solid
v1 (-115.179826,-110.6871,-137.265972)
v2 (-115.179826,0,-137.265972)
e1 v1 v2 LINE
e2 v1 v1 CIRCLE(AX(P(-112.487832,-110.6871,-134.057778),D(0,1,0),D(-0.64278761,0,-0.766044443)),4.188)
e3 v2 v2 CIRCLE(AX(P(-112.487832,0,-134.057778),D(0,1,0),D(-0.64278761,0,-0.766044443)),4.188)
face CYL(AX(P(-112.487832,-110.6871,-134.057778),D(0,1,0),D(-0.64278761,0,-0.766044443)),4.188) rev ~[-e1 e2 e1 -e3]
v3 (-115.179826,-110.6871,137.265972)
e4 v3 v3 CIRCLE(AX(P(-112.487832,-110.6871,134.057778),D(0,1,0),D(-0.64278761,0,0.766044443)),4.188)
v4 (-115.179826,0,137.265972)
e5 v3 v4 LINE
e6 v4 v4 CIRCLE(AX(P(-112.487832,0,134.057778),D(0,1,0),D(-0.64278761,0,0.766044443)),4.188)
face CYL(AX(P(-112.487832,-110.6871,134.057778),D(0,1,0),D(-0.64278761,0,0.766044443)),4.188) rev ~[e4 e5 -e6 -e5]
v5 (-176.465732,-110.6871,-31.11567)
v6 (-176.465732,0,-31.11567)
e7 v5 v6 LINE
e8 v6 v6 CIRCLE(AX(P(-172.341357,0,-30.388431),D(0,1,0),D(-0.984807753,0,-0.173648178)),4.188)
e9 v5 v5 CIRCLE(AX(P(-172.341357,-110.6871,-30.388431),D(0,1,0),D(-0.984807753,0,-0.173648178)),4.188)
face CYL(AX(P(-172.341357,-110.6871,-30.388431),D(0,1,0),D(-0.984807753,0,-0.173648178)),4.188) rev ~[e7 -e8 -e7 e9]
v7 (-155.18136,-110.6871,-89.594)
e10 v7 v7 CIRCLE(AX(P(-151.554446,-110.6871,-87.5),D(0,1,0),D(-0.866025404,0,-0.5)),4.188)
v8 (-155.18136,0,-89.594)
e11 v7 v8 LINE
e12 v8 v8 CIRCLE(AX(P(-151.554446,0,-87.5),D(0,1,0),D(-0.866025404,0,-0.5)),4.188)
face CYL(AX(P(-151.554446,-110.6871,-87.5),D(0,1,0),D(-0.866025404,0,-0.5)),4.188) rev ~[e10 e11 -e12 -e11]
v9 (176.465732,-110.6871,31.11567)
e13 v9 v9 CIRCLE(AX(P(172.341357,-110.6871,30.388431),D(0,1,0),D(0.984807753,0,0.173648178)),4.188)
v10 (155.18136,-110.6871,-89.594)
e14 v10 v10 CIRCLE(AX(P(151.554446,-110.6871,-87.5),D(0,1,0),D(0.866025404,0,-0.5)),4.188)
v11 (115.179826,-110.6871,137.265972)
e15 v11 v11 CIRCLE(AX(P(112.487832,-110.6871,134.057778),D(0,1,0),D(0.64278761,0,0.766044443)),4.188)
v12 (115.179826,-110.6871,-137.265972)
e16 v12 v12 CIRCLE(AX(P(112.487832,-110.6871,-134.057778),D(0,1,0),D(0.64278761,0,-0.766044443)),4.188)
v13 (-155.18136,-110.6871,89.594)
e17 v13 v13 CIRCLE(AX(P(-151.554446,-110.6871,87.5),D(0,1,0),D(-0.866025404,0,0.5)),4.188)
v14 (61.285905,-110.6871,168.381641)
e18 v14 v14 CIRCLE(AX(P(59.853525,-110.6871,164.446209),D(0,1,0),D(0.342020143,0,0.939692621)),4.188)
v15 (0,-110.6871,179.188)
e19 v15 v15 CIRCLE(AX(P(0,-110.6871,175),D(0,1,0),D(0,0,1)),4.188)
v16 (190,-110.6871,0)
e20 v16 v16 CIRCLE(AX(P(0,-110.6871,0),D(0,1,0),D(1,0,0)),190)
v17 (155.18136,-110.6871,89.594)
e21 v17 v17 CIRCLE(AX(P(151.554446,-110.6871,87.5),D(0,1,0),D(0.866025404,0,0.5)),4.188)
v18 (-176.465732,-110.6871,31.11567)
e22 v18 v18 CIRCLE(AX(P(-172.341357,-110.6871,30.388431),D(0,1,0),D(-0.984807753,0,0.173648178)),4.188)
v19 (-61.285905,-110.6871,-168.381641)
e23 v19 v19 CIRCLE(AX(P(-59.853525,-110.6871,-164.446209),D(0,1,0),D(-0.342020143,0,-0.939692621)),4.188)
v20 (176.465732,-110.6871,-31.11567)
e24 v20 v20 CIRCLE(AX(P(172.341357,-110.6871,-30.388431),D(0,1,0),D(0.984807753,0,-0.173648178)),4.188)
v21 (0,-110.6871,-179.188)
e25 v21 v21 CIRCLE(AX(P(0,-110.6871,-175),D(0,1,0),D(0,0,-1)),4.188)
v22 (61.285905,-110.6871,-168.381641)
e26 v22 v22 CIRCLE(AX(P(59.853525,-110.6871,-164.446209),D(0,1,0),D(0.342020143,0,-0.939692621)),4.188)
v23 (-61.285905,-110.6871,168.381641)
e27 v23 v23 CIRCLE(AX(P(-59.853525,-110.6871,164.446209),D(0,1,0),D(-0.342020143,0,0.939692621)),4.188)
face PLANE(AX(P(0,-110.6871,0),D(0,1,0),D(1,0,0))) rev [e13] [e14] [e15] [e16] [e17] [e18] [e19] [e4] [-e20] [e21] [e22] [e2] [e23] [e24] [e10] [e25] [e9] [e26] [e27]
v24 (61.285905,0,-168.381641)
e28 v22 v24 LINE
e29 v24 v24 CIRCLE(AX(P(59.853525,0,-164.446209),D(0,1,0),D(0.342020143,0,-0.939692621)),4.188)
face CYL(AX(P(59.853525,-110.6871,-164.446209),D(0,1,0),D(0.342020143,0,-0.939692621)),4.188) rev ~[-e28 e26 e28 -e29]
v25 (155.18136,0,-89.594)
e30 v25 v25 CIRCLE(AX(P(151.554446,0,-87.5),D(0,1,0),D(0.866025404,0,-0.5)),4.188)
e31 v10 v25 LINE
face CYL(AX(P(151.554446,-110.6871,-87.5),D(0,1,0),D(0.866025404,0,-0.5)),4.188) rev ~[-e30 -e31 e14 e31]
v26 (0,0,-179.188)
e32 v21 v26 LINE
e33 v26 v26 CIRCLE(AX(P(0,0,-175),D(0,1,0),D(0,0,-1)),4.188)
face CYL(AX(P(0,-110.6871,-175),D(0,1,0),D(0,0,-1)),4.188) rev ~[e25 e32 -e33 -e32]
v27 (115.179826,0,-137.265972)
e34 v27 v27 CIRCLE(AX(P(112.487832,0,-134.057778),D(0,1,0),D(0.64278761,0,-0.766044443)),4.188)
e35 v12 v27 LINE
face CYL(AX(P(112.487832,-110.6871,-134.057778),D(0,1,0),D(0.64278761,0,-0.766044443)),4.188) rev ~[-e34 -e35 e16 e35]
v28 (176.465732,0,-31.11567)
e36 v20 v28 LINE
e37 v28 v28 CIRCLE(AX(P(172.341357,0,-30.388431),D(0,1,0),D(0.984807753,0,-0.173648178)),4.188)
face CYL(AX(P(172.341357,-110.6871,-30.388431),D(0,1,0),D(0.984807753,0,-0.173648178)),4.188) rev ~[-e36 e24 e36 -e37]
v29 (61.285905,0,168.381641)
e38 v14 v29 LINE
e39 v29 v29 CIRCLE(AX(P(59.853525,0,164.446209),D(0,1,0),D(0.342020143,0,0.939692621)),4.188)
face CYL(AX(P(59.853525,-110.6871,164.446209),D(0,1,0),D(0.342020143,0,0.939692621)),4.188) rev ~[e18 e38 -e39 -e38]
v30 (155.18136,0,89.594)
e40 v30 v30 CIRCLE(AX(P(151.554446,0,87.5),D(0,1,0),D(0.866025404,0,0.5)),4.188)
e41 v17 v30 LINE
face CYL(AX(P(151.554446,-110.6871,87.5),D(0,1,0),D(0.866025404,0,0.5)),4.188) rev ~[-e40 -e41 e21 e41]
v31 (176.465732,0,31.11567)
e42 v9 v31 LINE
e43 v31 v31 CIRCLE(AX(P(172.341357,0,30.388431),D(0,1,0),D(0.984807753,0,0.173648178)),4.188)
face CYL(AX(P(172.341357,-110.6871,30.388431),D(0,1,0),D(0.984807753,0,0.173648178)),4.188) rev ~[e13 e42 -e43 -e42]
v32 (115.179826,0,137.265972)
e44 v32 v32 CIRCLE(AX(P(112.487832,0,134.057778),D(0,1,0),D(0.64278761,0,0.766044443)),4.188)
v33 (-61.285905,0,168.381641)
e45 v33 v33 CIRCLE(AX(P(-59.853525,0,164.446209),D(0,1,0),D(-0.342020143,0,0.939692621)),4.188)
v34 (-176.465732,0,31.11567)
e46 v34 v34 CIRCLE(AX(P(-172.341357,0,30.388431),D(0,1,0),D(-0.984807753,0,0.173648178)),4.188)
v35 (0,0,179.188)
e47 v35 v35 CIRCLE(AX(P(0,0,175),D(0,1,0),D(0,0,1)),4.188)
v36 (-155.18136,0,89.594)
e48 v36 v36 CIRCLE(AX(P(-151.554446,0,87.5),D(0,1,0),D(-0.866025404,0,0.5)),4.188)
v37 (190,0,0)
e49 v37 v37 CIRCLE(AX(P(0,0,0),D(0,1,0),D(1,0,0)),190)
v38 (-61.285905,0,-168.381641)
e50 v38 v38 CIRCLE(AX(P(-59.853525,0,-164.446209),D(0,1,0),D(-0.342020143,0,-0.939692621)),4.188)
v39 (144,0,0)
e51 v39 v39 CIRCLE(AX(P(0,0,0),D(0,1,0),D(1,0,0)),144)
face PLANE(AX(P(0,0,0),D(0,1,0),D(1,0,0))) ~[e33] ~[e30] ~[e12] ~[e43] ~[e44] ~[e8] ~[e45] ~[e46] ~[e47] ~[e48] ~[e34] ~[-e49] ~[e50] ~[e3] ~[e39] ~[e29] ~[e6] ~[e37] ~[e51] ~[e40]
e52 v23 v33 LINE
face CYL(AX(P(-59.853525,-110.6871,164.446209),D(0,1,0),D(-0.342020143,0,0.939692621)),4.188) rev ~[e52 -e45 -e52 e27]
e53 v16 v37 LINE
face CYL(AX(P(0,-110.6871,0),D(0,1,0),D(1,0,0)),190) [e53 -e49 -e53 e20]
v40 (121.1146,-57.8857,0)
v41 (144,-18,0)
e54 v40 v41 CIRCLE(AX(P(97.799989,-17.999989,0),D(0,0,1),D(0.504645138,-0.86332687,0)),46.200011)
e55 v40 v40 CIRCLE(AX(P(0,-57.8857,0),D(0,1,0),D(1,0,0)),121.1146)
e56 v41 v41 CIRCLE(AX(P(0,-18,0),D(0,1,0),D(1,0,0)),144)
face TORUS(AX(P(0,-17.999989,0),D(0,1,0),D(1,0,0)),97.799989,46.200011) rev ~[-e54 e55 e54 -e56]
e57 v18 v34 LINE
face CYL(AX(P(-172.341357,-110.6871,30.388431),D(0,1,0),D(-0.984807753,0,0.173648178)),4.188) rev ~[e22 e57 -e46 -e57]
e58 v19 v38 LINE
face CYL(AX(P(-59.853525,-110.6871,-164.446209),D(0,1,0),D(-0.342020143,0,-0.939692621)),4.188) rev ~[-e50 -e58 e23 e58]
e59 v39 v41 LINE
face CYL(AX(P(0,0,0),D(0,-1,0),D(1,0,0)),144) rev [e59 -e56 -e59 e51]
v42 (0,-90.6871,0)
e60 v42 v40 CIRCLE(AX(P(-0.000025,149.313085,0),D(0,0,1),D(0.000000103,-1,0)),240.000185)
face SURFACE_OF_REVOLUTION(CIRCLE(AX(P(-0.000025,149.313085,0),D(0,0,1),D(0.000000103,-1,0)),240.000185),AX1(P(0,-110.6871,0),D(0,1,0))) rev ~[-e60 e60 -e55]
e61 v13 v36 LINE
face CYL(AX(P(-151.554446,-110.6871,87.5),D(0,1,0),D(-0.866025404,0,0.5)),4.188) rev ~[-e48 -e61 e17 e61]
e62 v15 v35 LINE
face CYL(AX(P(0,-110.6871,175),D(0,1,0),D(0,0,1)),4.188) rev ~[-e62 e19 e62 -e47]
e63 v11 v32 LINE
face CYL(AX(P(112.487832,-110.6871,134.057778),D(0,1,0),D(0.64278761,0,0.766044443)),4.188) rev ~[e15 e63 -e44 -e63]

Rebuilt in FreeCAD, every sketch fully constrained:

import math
import FreeCAD as App
import Part
import Sketcher
from FreeCAD import Vector
Q = App.Units.Quantity

doc = App.newDocument("Part")
params = doc.addObject("Spreadsheet::Sheet", "Params")
for row, (alias, value) in enumerate([
    ("sketch1_radius", "240 mm"),
    ("sketch1_radius2", "46.2 mm"),
    ("sketch1_width", "46 mm"),
    ("sketch1_height", "20 mm"),
    ("sketch1_height2", "18 mm"),
    ("revolution_angle", "360 deg"),
    ("hole_diameter", "8.376 mm"),
], start=1):
    params.set(f"A{row}", alias)
    params.set(f"B{row}", "=" + value)
    params.setAlias(f"B{row}", alias)

body = doc.addObject("PartDesign::Body", "Body")

# Sketch on XY plane
sketch1 = body.newObject("Sketcher::SketchObject", "Sketch")
sketch1.AttachmentSupport = (doc.getObject("XY_Plane"), [""])
sketch1.MapMode = "FlatFace"
sketch1.addGeometry(Part.LineSegment(Vector(0, -91, 0), Vector(0, -111, 0)), False)
sketch1.addGeometry(Part.LineSegment(Vector(0, -111, 0), Vector(190, -111, 0)), False)
sketch1.addGeometry(Part.LineSegment(Vector(190, -111, 0), Vector(190, 0, 0)), False)
sketch1.addGeometry(Part.LineSegment(Vector(190, 0, 0), Vector(144, 0, 0)), False)
sketch1.addGeometry(Part.LineSegment(Vector(144, 0, 0), Vector(144, -18, 0)), False)
sketch1.addGeometry(Part.ArcOfCircle(Part.Circle(Vector(98, -18, 0), Vector(0, 0, 1), 46), math.radians(-60), math.radians(0)), False)
sketch1.addGeometry(Part.ArcOfCircle(Part.Circle(Vector(0, 149, 0), Vector(0, 0, 1), 240), math.radians(-90), math.radians(-60)), False)
sketch1.addConstraint(Sketcher.Constraint("Coincident", 0, 2, 1, 1))
sketch1.addConstraint(Sketcher.Constraint("Coincident", 1, 2, 2, 1))
sketch1.addConstraint(Sketcher.Constraint("Coincident", 2, 2, 3, 1))
sketch1.addConstraint(Sketcher.Constraint("Coincident", 3, 2, 4, 1))
sketch1.addConstraint(Sketcher.Constraint("Tangent", 4, 2, 5, 2))
sketch1.addConstraint(Sketcher.Constraint("Tangent", 5, 1, 6, 2))
sketch1.addConstraint(Sketcher.Constraint("Coincident", 6, 1, 0, 1))
sketch1.addConstraint(Sketcher.Constraint("Vertical", 0))
sketch1.addConstraint(Sketcher.Constraint("Horizontal", 1))
sketch1.addConstraint(Sketcher.Constraint("Vertical", 2))
sketch1.addConstraint(Sketcher.Constraint("Horizontal", 3))
sketch1.addConstraint(Sketcher.Constraint("Vertical", 4))
sketch1.addConstraint(Sketcher.Constraint("PointOnObject", 6, 3, -2))
sketch1.addConstraint(Sketcher.Constraint("PointOnObject", 0, 2, -2))
sketch1.addConstraint(Sketcher.Constraint("PointOnObject", 2, 2, -1))
sketch1.addConstraint(Sketcher.Constraint("Radius", 6, Q("240 mm")))
sketch1.addConstraint(Sketcher.Constraint("Radius", 5, Q("46.2 mm")))
sketch1.addConstraint(Sketcher.Constraint("DistanceX", 3, 2, 3, 1, Q("46 mm")))
sketch1.addConstraint(Sketcher.Constraint("DistanceY", 0, 2, 0, 1, Q("20 mm")))
sketch1.addConstraint(Sketcher.Constraint("DistanceY", 4, 2, 4, 1, Q("18 mm")))
sketch1.addConstraint(Sketcher.Constraint("DistanceX", 1, 1, 1, 2, Q("190 mm")))
sketch1.setExpression("Constraints[15]", "Params.sketch1_radius")
sketch1.setExpression("Constraints[16]", "Params.sketch1_radius2")
sketch1.setExpression("Constraints[17]", "Params.sketch1_width")
sketch1.setExpression("Constraints[18]", "Params.sketch1_height")
sketch1.setExpression("Constraints[19]", "Params.sketch1_height2")
revolution = body.newObject("PartDesign::Revolution", "Revolution")
revolution.Profile = sketch1
revolution.ReferenceAxis = (sketch1, ["V_Axis"])
revolution.setExpression("Angle", "Params.revolution_angle")

# Sketch on XZ plane
sketch2 = body.newObject("Sketcher::SketchObject", "Sketch001")
sketch2.AttachmentSupport = (doc.getObject("XZ_Plane"), [""])
sketch2.MapMode = "FlatFace"
sketch2.AttachmentOffset = App.Placement(Vector(0, 0, 110.6871), App.Rotation())
sketch2.addGeometry(Part.Circle(Vector(0, -175, 0), Vector(0, 0, 1), 4.2), False)
sketch2.addConstraint(Sketcher.Constraint("PointOnObject", 0, 3, -2))
sketch2.addConstraint(Sketcher.Constraint("Diameter", 0, Q("8.376 mm")))
sketch2.addConstraint(Sketcher.Constraint("DistanceY", 0, 3, -1, 1, Q("175 mm")))
doc.recompute()
hole = body.newObject("PartDesign::Hole", "Hole")
hole.Profile = sketch2
hole.ThreadType = "None"
hole.setExpression("Diameter", "Params.hole_diameter")
hole.DepthType = "ThroughAll"
doc.recompute()

polarpattern = body.newObject("PartDesign::PolarPattern", "PolarPattern")
polarpattern.Originals = [hole]
polarpattern.Axis = (doc.getObject("Y_Axis"), [""])
polarpattern.Angle = 360
polarpattern.Occurrences = 18
body.Tip = polarpattern

doc.recompute()
